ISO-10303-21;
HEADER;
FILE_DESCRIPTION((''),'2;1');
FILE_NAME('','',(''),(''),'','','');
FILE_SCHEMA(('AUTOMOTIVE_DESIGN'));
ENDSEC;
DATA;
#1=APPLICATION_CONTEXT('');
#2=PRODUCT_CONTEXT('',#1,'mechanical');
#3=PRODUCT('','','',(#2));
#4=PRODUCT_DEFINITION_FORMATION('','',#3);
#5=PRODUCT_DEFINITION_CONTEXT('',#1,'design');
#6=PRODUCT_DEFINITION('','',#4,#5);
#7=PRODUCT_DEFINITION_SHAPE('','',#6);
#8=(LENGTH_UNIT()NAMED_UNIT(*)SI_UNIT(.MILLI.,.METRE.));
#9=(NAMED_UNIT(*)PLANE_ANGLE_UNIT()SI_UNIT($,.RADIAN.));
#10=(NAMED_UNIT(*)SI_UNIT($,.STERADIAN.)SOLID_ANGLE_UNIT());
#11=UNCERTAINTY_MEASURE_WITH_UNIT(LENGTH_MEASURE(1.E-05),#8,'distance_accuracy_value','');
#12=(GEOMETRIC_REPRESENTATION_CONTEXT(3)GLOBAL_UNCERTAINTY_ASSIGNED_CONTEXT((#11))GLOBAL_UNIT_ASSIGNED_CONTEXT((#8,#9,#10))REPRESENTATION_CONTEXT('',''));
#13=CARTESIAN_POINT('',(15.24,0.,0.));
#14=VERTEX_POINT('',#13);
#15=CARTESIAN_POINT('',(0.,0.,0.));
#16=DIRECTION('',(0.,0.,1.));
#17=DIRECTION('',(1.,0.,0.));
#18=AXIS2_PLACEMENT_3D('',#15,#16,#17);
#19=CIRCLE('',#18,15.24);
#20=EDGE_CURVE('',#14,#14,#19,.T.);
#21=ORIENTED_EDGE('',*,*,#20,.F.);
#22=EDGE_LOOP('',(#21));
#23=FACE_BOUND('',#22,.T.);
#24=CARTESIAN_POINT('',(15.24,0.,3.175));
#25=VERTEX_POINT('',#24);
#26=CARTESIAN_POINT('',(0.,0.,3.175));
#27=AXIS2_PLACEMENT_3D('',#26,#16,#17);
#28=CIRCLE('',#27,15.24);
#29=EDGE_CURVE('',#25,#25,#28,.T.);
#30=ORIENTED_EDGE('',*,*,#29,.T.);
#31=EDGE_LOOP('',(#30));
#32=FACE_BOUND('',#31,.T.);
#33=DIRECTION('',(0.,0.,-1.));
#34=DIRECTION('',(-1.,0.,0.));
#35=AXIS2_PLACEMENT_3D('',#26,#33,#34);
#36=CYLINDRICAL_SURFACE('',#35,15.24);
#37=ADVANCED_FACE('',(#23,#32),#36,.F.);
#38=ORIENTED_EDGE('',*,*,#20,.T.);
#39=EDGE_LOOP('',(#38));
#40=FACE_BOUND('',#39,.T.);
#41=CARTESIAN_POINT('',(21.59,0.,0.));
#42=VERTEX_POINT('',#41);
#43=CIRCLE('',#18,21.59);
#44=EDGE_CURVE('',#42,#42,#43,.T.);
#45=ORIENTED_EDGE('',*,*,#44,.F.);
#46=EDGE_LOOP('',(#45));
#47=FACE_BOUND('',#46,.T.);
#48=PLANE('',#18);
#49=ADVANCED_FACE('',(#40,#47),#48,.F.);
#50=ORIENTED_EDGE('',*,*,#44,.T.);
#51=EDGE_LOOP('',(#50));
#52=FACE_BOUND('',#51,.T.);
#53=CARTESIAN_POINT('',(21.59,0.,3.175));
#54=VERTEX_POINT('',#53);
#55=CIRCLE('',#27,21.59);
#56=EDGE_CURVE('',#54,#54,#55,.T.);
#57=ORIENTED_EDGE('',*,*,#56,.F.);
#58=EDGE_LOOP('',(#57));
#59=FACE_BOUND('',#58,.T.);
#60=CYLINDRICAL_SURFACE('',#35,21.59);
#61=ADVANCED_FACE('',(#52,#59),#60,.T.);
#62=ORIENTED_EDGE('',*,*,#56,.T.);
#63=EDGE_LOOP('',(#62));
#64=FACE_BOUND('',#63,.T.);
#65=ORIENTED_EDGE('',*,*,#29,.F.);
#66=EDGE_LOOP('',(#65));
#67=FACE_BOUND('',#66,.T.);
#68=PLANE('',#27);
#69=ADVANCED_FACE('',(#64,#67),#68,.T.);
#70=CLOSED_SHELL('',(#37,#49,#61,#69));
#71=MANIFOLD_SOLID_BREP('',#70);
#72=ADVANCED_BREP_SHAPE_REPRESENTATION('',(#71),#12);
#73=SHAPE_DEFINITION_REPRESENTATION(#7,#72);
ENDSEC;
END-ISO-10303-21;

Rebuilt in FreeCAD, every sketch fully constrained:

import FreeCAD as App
import Part
import Sketcher
Q = App.Units.Quantity

doc = App.newDocument("Part")
body = doc.addObject("PartDesign::Body", "Body")

# Sketch on XY plane
sketch1 = body.newObject("Sketcher::SketchObject", "Sketch")
sketch1.AttachmentSupport = (doc.getObject("XY_Plane"), [""])
sketch1.MapMode = "FlatFace"
sketch1.addGeometry([
    Part.Circle(App.Vector(0, 0, 0), App.Vector(0, 0, 1), 22),
    Part.Circle(App.Vector(0, 0, 0), App.Vector(0, 0, 1), 15),
], False)
sketch1.addConstraint([
    Sketcher.Constraint("Coincident", 0, 3, -1, 1),
    Sketcher.Constraint("Coincident", 1, 3, -1, 1),
    Sketcher.Constraint("Diameter", 0, Q("1.7 in")),
    Sketcher.Constraint("Diameter", 1, Q("1.2 in")),
])
pad1 = body.newObject("PartDesign::Pad", "Pad")
pad1.Profile = sketch1
pad1.Length = Q("0.125 in")

doc.recompute()
